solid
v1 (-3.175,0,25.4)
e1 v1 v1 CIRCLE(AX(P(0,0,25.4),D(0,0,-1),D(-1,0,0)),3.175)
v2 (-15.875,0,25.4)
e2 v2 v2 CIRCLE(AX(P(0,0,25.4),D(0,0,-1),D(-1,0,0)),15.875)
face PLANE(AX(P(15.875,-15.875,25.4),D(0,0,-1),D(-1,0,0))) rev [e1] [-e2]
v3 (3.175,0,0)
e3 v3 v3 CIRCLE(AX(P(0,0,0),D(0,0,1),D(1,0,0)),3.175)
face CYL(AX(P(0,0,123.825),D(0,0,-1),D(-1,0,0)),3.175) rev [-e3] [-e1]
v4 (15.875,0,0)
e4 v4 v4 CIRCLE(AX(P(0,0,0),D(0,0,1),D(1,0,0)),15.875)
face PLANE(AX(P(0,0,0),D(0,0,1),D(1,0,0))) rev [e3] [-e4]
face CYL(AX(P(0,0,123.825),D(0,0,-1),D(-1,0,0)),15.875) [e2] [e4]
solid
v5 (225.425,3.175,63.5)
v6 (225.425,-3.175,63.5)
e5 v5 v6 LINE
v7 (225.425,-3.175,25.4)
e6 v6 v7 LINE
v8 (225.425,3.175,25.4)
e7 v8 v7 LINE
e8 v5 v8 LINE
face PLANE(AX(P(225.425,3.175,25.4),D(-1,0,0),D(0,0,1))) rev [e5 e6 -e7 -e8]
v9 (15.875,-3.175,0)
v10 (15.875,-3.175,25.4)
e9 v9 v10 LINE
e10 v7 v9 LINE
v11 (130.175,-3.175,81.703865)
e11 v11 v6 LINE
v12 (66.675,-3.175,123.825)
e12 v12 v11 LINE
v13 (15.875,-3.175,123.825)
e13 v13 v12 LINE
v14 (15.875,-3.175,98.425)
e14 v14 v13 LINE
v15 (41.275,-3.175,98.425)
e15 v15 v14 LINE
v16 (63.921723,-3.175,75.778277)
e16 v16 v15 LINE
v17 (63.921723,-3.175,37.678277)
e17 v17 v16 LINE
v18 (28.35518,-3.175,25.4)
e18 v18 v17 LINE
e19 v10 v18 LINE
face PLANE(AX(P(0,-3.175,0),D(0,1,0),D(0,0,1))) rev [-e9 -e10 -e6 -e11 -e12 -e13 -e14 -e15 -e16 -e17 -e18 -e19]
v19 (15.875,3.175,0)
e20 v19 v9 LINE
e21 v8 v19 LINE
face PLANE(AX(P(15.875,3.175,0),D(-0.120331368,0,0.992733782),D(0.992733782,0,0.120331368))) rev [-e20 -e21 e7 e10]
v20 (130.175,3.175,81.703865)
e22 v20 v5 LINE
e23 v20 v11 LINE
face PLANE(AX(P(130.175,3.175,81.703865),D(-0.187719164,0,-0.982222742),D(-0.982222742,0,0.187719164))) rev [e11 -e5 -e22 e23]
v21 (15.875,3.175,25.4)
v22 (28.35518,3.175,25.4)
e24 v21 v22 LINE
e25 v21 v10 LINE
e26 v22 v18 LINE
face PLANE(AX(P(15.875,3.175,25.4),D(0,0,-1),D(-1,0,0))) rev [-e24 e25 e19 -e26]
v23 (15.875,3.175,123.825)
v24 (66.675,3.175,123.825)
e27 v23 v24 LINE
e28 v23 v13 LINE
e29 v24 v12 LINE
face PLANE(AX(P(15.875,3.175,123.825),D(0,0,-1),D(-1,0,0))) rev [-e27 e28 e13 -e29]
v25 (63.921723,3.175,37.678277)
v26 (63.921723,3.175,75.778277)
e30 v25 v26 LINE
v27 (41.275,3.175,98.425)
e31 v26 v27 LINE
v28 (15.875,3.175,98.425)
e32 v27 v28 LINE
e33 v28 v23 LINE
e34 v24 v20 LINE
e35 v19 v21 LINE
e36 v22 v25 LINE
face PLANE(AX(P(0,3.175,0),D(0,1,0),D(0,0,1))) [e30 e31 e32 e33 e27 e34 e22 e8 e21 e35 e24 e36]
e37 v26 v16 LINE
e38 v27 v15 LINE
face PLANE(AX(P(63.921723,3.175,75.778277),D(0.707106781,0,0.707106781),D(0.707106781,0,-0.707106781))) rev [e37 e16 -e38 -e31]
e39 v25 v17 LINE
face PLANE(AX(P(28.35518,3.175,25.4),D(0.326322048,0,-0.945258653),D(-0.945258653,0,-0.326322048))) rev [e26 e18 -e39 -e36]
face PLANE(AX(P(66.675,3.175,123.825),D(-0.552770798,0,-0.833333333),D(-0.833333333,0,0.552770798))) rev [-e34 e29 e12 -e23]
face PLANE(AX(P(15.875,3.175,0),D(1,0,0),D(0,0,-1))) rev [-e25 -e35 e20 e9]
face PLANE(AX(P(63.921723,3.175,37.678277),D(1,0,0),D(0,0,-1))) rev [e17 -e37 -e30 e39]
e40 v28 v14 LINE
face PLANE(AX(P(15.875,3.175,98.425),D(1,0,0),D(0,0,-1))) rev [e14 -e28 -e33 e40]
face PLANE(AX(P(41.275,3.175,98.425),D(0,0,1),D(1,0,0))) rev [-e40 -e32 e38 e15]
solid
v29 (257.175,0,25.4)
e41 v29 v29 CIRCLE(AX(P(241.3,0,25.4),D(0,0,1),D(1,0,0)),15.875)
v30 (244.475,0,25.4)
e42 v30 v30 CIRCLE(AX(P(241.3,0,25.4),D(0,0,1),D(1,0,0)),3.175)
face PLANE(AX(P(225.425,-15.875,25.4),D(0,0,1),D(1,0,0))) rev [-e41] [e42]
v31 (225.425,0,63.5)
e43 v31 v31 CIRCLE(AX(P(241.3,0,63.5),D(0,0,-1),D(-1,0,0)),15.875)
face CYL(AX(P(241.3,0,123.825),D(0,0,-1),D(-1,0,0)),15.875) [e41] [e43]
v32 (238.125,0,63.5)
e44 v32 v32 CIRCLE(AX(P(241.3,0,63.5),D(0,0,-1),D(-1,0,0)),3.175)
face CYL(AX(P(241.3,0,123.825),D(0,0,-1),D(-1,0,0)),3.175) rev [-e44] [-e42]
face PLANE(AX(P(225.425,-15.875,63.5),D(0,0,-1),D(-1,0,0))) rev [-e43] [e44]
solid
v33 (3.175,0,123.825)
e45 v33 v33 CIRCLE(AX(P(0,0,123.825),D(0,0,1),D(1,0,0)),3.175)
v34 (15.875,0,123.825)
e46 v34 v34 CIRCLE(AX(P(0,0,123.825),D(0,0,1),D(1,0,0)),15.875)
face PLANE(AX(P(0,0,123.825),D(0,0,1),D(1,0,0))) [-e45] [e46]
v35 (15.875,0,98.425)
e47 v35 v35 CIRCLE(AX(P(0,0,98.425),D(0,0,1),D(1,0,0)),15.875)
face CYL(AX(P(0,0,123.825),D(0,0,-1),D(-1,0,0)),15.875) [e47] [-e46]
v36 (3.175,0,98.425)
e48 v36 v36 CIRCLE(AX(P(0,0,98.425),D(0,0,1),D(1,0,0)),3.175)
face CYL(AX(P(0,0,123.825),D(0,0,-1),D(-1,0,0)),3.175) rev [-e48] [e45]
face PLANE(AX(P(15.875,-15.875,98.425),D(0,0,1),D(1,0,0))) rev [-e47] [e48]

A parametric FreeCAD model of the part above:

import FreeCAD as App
import Part
import Sketcher
from FreeCAD import Vector
Q = App.Units.Quantity


def add_polygon(sketch, points):
    """Adds a closed chain of lines whose ends are joined by coincident constraints."""
    first, n = sketch.GeometryCount, len(points)
    for a, b in zip(points, points[1:] + points[:1]):
        sketch.addGeometry(Part.LineSegment(App.Vector(*a, 0), App.Vector(*b, 0)), False)
    for i in range(n):
        sketch.addConstraint(Sketcher.Constraint("Coincident", first + i, 2, first + (i + 1) % n, 1))

doc = App.newDocument("Part")
body = doc.addObject("PartDesign::Body", "Body")

# Sketch on XY plane
sketch1 = doc.addObject("Sketcher::SketchObject", "Sketch")
body.addObject(sketch1)
sketch1.AttachmentSupport = (doc.XY_Plane, [""])
sketch1.MapMode = "FlatFace"
sketch1.addGeometry([
    Part.Circle(Vector(0, 0, 0), Vector(0, 0, 1), 15.875),
    Part.Circle(Vector(0, 0, 0), Vector(0, 0, 1), 3.175),
], False)
sketch1.addConstraint([
    Sketcher.Constraint("Coincident", 0, 3, -1, 1),
    Sketcher.Constraint("Coincident", 1, 3, -1, 1),
    Sketcher.Constraint("Diameter", 0, Q("1.25 in")),
    Sketcher.Constraint("Diameter", 1, Q("0.25 in")),
])
pad1 = doc.addObject("PartDesign::Pad", "Pad")
body.addObject(pad1)
pad1.Profile = sketch1
pad1.Length = Q("4.875 in")
body2 = doc.addObject("PartDesign::Body", "Body001")

# Sketch on XY plane
sketch2 = doc.addObject("Sketcher::SketchObject", "Sketch001")
body2.addObject(sketch2)
sketch2.AttachmentSupport = (doc.getObject("XY_Plane001"), [""])
sketch2.MapMode = "FlatFace"
sketch2.addGeometry([
    Part.Circle(Vector(241.3, 0, 0), Vector(0, 0, 1), 15.875),
    Part.Circle(Vector(241.3, 0, 0), Vector(0, 0, 1), 3.175),
], False)
sketch2.addConstraint([
    Sketcher.Constraint("Coincident", 1, 3, 0, 3),
    Sketcher.Constraint("PointOnObject", 0, 3, -1),
    Sketcher.Constraint("Diameter", 0, Q("1.25 in")),
    Sketcher.Constraint("Diameter", 1, Q("0.25 in")),
    Sketcher.Constraint("DistanceX", -1, 1, 0, 3, Q("9.5 in")),
])
pad2 = doc.addObject("PartDesign::Pad", "Pad001")
body2.addObject(pad2)
pad2.Profile = sketch2
pad2.Length = Q("4.875 in")
body3 = doc.addObject("PartDesign::Body", "Body002")

# Sketch on XZ plane
sketch3 = doc.addObject("Sketcher::SketchObject", "Sketch002")
body3.addObject(sketch3)
sketch3.AttachmentSupport = (doc.getObject("XZ_Plane002"), [""])
sketch3.MapMode = "FlatFace"
add_polygon(sketch3, [(225.425, 25.4), (15.875, 0), (15.875, 25.4), (28.35518, 25.4), (63.921723, 37.678277), (63.921723, 75.778277), (41.275, 98.425), (15.875, 98.425), (15.875, 123.825), (66.675, 123.825), (130.175, 81.703865), (225.425, 63.5)])  # lines 0-11
sketch3.addConstraint([
    Sketcher.Constraint("Vertical", 1),
    Sketcher.Constraint("Horizontal", 2),
    Sketcher.Constraint("Vertical", 4),
    Sketcher.Constraint("Horizontal", 6),
    Sketcher.Constraint("Vertical", 7),
    Sketcher.Constraint("Horizontal", 8),
    Sketcher.Constraint("Vertical", 11),
    Sketcher.Constraint("PointOnObject", 0, 2, -1),
    Sketcher.Constraint("Horizontal", 2, 2, 11, 2),
    Sketcher.Constraint("Vertical", 1, 2, 6, 2),
    Sketcher.Constraint("Equal", 6, 1),
    Sketcher.Constraint("Equal", 1, 7),
    Sketcher.Constraint("Equal", 4, 11),
    Sketcher.Constraint("DistanceX", 6, 2, 6, 1, Q("1 in")),
    Sketcher.Constraint("DistanceX", 8, 1, 8, 2, Q("2 in")),
    Sketcher.Constraint("Distance", 9, Q("3 in")),
    Sketcher.Constraint("DistanceY", 4, 1, 4, 2, Q("1.5 in")),
    Sketcher.Constraint("Angle", 5, Q("135 deg")),
    Sketcher.Constraint("DistanceX", 8, 2, 9, 2, Q("2.5 in")),
    Sketcher.Constraint("DistanceX", 9, 2, 10, 2, Q("3.75 in")),
    Sketcher.Constraint("DistanceX", -1, 1, 0, 2, Q("0.625 in")),
    Sketcher.Constraint("DistanceY", -1, 1, 5, 2, Q("3.875 in")),
    Sketcher.Constraint("DistanceX", 2, 1, 2, 2, Q("12.48018 mm")),
    Sketcher.Constraint("DistanceY", 4, 2, 9, 2, Q("5.925588 mm")),
])
pad3 = doc.addObject("PartDesign::Pad", "Pad002")
body3.addObject(pad3)
pad3.Profile = sketch3
pad3.Length = Q("0.25 in")
pad3.Midplane = True
body4 = doc.addObject("PartDesign::Body", "Body003")
body4.AllowCompound = True

# Sketch on XZ plane
sketch4 = doc.addObject("Sketcher::SketchObject", "Sketch003")
body4.addObject(sketch4)
sketch4.AttachmentSupport = (doc.getObject("XZ_Plane003"), [""])
sketch4.MapMode = "FlatFace"
add_polygon(sketch4, [(-15.875, 25.4), (-15.875, 98.425), (15.875, 98.425), (15.875, 25.4)])  # lines 0-3
add_polygon(sketch4, [(225.425, 0), (225.425, 25.4), (257.175, 25.4), (257.175, 0)])  # lines 4-7
add_polygon(sketch4, [(225.425, 63.5), (225.425, 123.825), (257.175, 123.825), (257.175, 63.5)])  # lines 8-11
sketch4.addConstraint([
    Sketcher.Constraint("Vertical", 0),
    Sketcher.Constraint("Horizontal", 1),
    Sketcher.Constraint("Vertical", 2),
    Sketcher.Constraint("Horizontal", 3),
    Sketcher.Constraint("Vertical", 4),
    Sketcher.Constraint("Horizontal", 5),
    Sketcher.Constraint("Vertical", 6),
    Sketcher.Constraint("Horizontal", 7),
    Sketcher.Constraint("Vertical", 8),
    Sketcher.Constraint("Horizontal", 9),
    Sketcher.Constraint("Vertical", 10),
    Sketcher.Constraint("Horizontal", 11),
    Sketcher.Constraint("PointOnObject", 6, 2, -1),
    Sketcher.Constraint("Horizontal", 3, 2, 4, 2),
    Sketcher.Constraint("Vertical", 7, 2, 8, 2),
    Sketcher.Constraint("Vertical", 6, 2, 9, 2),
    Sketcher.Constraint("Equal", 3, 5),
    Sketcher.Constraint("DistanceY", 4, 1, 4, 2, Q("1 in")),
    Sketcher.Constraint("DistanceY", 1, 2, 8, 2, Q("1 in")),
    Sketcher.Constraint("DistanceX", 1, 1, 1, 2, Q("1.25 in")),
    Sketcher.Constraint("DistanceY", -1, 1, 10, 2, Q("2.5 in")),
    Sketcher.Constraint("DistanceX", 3, 2, 4, 2, Q("9.5 in")),
    Sketcher.Constraint("DistanceY", 0, 1, 0, 2, Q("2.875 in")),
    Sketcher.Constraint("DistanceX", 0, 2, -1, 1, Q("0.625 in")),
])
pad4 = doc.addObject("PartDesign::Pad", "Pad003")
body4.addObject(pad4)
pad4.Profile = sketch4
pad4.Type = "TwoLengths"
pad4.Length = 286.873446
pad4.Length2 = 286.873446
pad4.Reversed = True
body.AllowCompound = True
doc.recompute()

body5 = doc.addObject("PartDesign::Body", "Body004")
body5.BaseFeature = body4
boolean = doc.addObject("PartDesign::Boolean", "Boolean")
body.addObject(boolean)
boolean.Type = "Cut"
boolean.addObjects([body5])
doc.recompute()

boolean2 = doc.addObject("PartDesign::Boolean", "Boolean001")
body2.addObject(boolean2)
boolean2.Type = "Cut"
boolean2.addObjects([body4])

doc.recompute()
